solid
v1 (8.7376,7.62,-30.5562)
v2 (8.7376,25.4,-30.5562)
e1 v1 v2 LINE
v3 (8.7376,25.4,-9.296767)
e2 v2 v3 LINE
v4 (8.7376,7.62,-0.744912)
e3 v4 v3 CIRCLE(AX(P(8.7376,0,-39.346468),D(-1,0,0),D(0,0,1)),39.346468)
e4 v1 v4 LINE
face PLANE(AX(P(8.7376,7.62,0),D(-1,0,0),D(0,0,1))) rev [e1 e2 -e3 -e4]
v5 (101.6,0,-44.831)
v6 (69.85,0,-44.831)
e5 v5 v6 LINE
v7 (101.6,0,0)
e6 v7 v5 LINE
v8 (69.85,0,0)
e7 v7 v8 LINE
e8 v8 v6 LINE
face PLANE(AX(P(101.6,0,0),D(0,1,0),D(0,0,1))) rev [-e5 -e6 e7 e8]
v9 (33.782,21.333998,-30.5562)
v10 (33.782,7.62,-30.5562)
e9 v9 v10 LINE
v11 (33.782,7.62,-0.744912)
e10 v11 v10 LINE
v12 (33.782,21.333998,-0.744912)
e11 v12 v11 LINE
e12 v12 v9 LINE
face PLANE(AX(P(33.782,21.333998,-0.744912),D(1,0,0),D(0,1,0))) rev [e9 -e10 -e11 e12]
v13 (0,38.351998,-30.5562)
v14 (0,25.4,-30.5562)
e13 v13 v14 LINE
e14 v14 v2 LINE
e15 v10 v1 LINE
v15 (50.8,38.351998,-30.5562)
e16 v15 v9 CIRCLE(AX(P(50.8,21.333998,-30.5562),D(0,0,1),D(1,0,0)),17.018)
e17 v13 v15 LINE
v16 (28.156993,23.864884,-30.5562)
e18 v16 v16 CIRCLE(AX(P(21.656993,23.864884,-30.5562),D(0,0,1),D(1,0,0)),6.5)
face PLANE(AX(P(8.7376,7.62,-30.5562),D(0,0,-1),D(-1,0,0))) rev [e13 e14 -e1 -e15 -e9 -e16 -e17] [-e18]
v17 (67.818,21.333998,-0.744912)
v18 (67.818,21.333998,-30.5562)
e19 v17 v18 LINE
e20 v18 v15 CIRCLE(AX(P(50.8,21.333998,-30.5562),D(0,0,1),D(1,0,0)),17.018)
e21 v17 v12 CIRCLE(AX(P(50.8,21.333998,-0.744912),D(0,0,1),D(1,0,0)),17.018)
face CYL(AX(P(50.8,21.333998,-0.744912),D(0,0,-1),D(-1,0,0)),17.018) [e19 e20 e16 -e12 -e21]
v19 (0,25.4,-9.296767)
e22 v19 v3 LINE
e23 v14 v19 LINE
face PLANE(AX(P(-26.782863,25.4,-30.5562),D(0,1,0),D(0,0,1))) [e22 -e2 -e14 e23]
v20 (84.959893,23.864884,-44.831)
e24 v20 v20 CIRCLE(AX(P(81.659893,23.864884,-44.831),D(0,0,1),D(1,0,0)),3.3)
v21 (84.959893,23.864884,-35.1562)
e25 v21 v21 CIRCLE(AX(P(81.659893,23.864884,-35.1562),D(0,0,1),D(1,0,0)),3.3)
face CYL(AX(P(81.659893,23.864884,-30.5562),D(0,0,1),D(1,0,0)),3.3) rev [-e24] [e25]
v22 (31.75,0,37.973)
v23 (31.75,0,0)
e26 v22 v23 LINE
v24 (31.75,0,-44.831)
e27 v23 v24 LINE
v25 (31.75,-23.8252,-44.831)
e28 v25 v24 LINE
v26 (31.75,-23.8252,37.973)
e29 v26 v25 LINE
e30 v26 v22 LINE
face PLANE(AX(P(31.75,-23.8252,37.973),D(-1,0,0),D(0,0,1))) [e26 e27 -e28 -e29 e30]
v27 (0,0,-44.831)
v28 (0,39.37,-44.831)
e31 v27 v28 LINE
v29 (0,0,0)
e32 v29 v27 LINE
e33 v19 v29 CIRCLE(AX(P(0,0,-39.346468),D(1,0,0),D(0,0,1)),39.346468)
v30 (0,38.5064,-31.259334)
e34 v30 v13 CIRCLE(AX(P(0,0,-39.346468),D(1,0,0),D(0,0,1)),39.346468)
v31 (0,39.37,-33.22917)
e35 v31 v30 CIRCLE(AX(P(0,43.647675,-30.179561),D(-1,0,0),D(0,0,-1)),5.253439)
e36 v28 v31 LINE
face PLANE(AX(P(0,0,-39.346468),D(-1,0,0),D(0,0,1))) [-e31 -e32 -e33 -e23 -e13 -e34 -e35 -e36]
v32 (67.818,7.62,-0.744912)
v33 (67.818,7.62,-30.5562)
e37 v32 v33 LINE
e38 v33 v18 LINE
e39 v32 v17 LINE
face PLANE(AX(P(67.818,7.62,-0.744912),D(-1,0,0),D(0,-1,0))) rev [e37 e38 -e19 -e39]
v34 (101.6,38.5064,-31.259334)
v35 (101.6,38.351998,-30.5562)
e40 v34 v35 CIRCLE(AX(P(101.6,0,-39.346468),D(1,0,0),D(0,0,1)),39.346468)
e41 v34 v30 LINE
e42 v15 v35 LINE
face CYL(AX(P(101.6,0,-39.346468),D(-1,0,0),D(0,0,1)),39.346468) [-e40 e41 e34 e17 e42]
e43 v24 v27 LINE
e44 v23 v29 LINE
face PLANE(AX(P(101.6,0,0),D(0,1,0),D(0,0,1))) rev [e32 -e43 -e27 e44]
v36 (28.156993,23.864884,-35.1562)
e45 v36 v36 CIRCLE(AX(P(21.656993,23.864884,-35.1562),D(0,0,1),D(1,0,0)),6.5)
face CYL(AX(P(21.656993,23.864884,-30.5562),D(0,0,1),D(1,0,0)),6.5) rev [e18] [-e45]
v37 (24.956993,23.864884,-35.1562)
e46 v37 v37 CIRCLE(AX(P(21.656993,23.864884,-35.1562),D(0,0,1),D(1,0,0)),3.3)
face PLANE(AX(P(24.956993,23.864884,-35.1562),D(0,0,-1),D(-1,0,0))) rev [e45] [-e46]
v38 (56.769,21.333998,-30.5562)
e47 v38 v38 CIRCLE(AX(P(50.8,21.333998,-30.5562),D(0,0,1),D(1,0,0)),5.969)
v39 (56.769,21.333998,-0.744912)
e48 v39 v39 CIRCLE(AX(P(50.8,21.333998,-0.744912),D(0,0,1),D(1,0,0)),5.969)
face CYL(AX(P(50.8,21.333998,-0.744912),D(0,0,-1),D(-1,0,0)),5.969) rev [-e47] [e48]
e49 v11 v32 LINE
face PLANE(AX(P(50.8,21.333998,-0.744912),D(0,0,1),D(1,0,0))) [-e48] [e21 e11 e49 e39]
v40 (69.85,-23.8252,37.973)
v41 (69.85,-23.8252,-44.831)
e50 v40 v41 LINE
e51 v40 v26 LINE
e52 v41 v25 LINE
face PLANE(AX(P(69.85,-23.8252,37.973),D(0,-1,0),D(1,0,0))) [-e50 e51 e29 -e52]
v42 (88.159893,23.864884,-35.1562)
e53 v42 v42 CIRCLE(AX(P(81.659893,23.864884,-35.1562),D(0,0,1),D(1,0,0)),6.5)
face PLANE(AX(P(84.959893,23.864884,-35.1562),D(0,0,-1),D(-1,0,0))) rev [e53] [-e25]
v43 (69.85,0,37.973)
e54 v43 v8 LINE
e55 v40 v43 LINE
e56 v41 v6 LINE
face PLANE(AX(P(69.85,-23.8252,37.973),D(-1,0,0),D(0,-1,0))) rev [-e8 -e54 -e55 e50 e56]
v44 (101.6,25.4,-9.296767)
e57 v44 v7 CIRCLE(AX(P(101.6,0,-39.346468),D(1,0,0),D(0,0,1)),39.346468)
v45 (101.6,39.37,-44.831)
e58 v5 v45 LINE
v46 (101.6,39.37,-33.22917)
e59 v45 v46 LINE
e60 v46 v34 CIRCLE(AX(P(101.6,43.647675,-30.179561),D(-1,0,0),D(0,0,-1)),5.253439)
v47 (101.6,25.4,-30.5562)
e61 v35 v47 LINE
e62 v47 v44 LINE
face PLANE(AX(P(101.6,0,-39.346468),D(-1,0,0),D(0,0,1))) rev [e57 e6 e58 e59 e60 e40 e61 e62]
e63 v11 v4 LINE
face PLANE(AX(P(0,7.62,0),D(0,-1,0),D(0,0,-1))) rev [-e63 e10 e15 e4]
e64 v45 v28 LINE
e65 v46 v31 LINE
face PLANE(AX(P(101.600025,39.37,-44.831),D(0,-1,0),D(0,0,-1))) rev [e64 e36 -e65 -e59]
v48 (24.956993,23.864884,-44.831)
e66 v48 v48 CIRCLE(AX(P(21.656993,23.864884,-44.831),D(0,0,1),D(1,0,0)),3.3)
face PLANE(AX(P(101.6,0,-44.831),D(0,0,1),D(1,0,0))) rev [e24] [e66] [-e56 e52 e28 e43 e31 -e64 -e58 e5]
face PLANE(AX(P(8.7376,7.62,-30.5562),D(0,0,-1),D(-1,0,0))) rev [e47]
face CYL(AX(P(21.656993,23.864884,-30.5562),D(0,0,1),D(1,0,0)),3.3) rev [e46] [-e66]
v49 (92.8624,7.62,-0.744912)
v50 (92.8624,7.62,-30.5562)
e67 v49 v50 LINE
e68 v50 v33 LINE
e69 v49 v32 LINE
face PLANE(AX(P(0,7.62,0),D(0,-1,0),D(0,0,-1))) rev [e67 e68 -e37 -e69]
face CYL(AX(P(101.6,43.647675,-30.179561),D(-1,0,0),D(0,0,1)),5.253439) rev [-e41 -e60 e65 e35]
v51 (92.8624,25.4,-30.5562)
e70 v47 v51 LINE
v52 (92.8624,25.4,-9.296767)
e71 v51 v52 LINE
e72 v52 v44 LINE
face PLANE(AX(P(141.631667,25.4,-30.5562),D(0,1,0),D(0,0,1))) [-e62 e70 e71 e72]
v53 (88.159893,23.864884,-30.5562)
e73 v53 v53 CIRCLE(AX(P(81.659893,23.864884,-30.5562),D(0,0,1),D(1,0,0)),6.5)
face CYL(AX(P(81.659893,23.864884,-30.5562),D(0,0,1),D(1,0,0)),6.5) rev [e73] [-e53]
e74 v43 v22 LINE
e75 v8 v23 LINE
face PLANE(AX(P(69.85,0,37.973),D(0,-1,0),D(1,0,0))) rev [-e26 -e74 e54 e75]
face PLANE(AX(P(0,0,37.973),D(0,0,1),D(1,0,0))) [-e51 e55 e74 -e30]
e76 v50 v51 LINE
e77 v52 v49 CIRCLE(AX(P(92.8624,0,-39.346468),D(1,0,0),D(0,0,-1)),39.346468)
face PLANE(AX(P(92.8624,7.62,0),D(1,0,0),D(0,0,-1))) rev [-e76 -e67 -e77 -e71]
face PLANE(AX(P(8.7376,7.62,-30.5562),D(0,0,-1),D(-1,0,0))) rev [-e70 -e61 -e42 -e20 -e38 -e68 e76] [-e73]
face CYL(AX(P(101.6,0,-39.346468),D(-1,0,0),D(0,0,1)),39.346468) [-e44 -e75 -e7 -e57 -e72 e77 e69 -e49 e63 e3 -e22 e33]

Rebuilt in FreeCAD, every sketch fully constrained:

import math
import FreeCAD as App
import Part
import Sketcher

V = App.Vector
Q = App.Units.Quantity

doc = App.newDocument("Part")
body = doc.addObject("PartDesign::Body", "Body")

# Sketch on YZ plane
sketch1 = doc.addObject("Sketcher::SketchObject", "Sketch")
body.addObject(sketch1)
sketch1.AttachmentSupport = (doc.YZ_Plane, [""])
sketch1.MapMode = "FlatFace"
sketch1.addGeometry([
    Part.LineSegment(V(45.2, -35.4, 0), V(43.6, -35.4, 0)),  # 0
    Part.ArcOfCircle(Part.Circle(V(43.6, -30.2, 0), V(0, 0, 1), 5.3), math.radians(-168), math.radians(-90)),  # 1
    Part.ArcOfCircle(Part.Circle(V(0, -39.3, 0), V(0, 0, 1), 39.3), math.radians(12), math.radians(90)),  # 2
    Part.LineSegment(V(0, 0, 0), V(0, -44.8, 0)),  # 3
    Part.LineSegment(V(0, -44.8, 0), V(45.2, -44.8, 0)),  # 4
    Part.LineSegment(V(45.2, -44.8, 0), V(45.2, -35.4, 0)),  # 5
], False)
sketch1.addConstraint([
    Sketcher.Constraint("Tangent", 0, 2, 1, 2),
    Sketcher.Constraint("Tangent", 1, 1, 2, 1),
    Sketcher.Constraint("Coincident", 2, 2, 3, 1),
    Sketcher.Constraint("Coincident", 3, 2, 4, 1),
    Sketcher.Constraint("Coincident", 4, 2, 5, 1),
    Sketcher.Constraint("Coincident", 5, 2, 0, 1),
    Sketcher.Constraint("Horizontal", 0),
    Sketcher.Constraint("Vertical", 3),
    Sketcher.Constraint("Horizontal", 4),
    Sketcher.Constraint("Vertical", 5),
    Sketcher.Constraint("Coincident", 2, 2, -1, 1),
    Sketcher.Constraint("PointOnObject", 2, 3, -2),
    Sketcher.Constraint("DistanceX", 4, 1, 4, 2, Q("1.78 in")),
    Sketcher.Constraint("DistanceY", 5, 1, 5, 2, Q("0.37 in")),
    Sketcher.Constraint("DistanceY", 3, 2, 3, 1, Q("1.765 in")),
    Sketcher.Constraint("DistanceX", -1, 1, 1, 1, Q("1.516 in")),
    Sketcher.Constraint("Radius", 1, Q("5.253439 mm")),
])
pad1 = doc.addObject("PartDesign::Pad", "Pad")
body.addObject(pad1)
pad1.Profile = sketch1
pad1.Length = Q("4 in")

# Sketch on XZ plane
sketch2 = doc.addObject("Sketcher::SketchObject", "Sketch001")
body.addObject(sketch2)
sketch2.AttachmentSupport = (doc.XZ_Plane, [""])
sketch2.MapMode = "FlatFace"
sketch2.AttachmentOffset = App.Placement(V(0, 0, -1.78 * 25.4), App.Rotation())
sketch2.addGeometry([
    Part.LineSegment(V(9, -31, 0), V(9, 0, 0)),
    Part.LineSegment(V(9, 0, 0), V(93, 0, 0)),
    Part.LineSegment(V(93, 0, 0), V(93, -31, 0)),
    Part.LineSegment(V(93, -31, 0), V(9, -31, 0)),
], False)
sketch2.addConstraint([
    Sketcher.Constraint("Coincident", 0, 2, 1, 1),
    Sketcher.Constraint("Coincident", 1, 2, 2, 1),
    Sketcher.Constraint("Coincident", 2, 2, 3, 1),
    Sketcher.Constraint("Coincident", 3, 2, 0, 1),
    Sketcher.Constraint("Vertical", 0),
    Sketcher.Constraint("Horizontal", 1),
    Sketcher.Constraint("Vertical", 2),
    Sketcher.Constraint("Horizontal", 3),
    Sketcher.Constraint("PointOnObject", 0, 2, -1),
    Sketcher.Constraint("DistanceX", 1, 1, 1, 2, Q("3.312 in")),
    Sketcher.Constraint("DistanceY", 0, 1, 0, 2, Q("1.203 in")),
    Sketcher.Constraint("DistanceX", -1, 1, 0, 2, Q("0.344 in")),
])
pocket1 = doc.addObject("PartDesign::Pocket", "Pocket")
body.addObject(pocket1)
pocket1.Profile = sketch2
pocket1.Length = Q("1.48 in")
pocket1.Reversed = True

# Sketch on XY plane
sketch3 = doc.addObject("Sketcher::SketchObject", "Sketch002")
body.addObject(sketch3)
sketch3.AttachmentSupport = (doc.XY_Plane, [""])
sketch3.MapMode = "FlatFace"
sketch3.AttachmentOffset = App.Placement(V(0, 0, -1.203 * 25.4), App.Rotation())
sketch3.addGeometry([
    Part.LineSegment(V(68, 8, 0), V(68, 21, 0)),  # 0
    Part.ArcOfCircle(Part.Circle(V(51, 21, 0), V(0, 0, 1), 17), math.radians(0), math.radians(180)),  # 1
    Part.LineSegment(V(34, 21, 0), V(34, 8, 0)),  # 2
    Part.LineSegment(V(34, 8, 0), V(68, 8, 0)),  # 3
    Part.Circle(V(51, 21, 0), V(0, 0, 1), 6),  # 4
], False)
sketch3.addConstraint([
    Sketcher.Constraint("Tangent", 0, 2, 1, 1),
    Sketcher.Constraint("Tangent", 1, 2, 2, 1),
    Sketcher.Constraint("Coincident", 2, 2, 3, 1),
    Sketcher.Constraint("Coincident", 3, 2, 0, 1),
    Sketcher.Constraint("Vertical", 0),
    Sketcher.Constraint("Vertical", 2),
    Sketcher.Constraint("Horizontal", 3),
    Sketcher.Constraint("Coincident", 4, 3, 1, 3),
    Sketcher.Constraint("Diameter", 4, Q("0.47 in")),
    Sketcher.Constraint("Radius", 1, Q("0.67 in")),
    Sketcher.Constraint("DistanceX", -1, 1, 1, 3, Q("2 in")),
    Sketcher.Constraint("DistanceY", -1, 1, 2, 2, Q("0.3 in")),
    Sketcher.Constraint("DistanceY", 0, 1, 0, 2, Q("13.713998 mm")),
])
pad2 = doc.addObject("PartDesign::Pad", "Pad001")
body.addObject(pad2)
pad2.Profile = sketch3
pad2.Length = 29.811288

# Sketch on XY plane
sketch4 = doc.addObject("Sketcher::SketchObject", "Sketch003")
body.addObject(sketch4)
sketch4.AttachmentSupport = (doc.XY_Plane, [""])
sketch4.MapMode = "FlatFace"
sketch4.AttachmentOffset = App.Placement(V(0, 0, -1.765 * 25.4), App.Rotation())
sketch4.addGeometry([
    Part.LineSegment(V(70, 0, 0), V(70, -24, 0)),
    Part.LineSegment(V(70, -24, 0), V(32, -24, 0)),
    Part.LineSegment(V(32, -24, 0), V(32, 0, 0)),
    Part.LineSegment(V(32, 0, 0), V(70, 0, 0)),
], False)
sketch4.addConstraint([
    Sketcher.Constraint("Coincident", 0, 2, 1, 1),
    Sketcher.Constraint("Coincident", 1, 2, 2, 1),
    Sketcher.Constraint("Coincident", 2, 2, 3, 1),
    Sketcher.Constraint("Coincident", 3, 2, 0, 1),
    Sketcher.Constraint("Vertical", 0),
    Sketcher.Constraint("Horizontal", 1),
    Sketcher.Constraint("Vertical", 2),
    Sketcher.Constraint("Horizontal", 3),
    Sketcher.Constraint("PointOnObject", 2, 2, -1),
    Sketcher.Constraint("DistanceX", 1, 2, 1, 1, Q("1.5 in")),
    Sketcher.Constraint("DistanceY", 0, 2, 0, 1, Q("0.938 in")),
    Sketcher.Constraint("DistanceX", -1, 1, 0, 2, Q("2.75 in")),
])
pad3 = doc.addObject("PartDesign::Pad", "Pad002")
body.addObject(pad3)
pad3.Profile = sketch4
pad3.Length = Q("3.26 in")

# Sketch on XY plane
sketch5 = doc.addObject("Sketcher::SketchObject", "Sketch004")
body.addObject(sketch5)
sketch5.AttachmentSupport = (doc.XY_Plane, [""])
sketch5.MapMode = "FlatFace"
sketch5.AttachmentOffset = App.Placement(V(0, 0, -1.203 * 25.4), App.Rotation())
sketch5.addGeometry([
    Part.Circle(V(21.7, 23.9, 0), V(0, 0, 1), 3.3),
    Part.Circle(V(81.7, 23.9, 0), V(0, 0, 1), 3.3),
], False)
sketch5.addConstraint([
    Sketcher.Constraint("Equal", 0, 1),
    Sketcher.Constraint("Horizontal", 0, 3, 1, 3),
    Sketcher.Constraint("Diameter", 0, Q("6.6 mm")),
    Sketcher.Constraint("DistanceX", 0, 3, 1, 3, Q("60.0029 mm")),
    Sketcher.Constraint("DistanceX", -1, 1, 0, 3, Q("21.656993 mm")),
    Sketcher.Constraint("DistanceY", -1, 1, 0, 3, Q("23.864884 mm")),
])
doc.recompute()
hole = doc.addObject("PartDesign::Hole", "Hole")
body.addObject(hole)
hole.Profile = sketch5
hole.ThreadType = "None"
hole.Diameter = 6.6
hole.DepthType = "ThroughAll"
hole.HoleCutType = "Counterbore"
hole.HoleCutDiameter = 13
hole.HoleCutDepth = 4.6

# Sketch on YZ plane
sketch6 = doc.addObject("Sketcher::SketchObject", "Sketch005")
body.addObject(sketch6)
sketch6.AttachmentSupport = (doc.YZ_Plane, [""])
sketch6.MapMode = "FlatFace"
sketch6.addGeometry([
    Part.LineSegment(V(45, -45, 0), V(39, -45, 0)),
    Part.LineSegment(V(39, -45, 0), V(39, -30, 0)),
    Part.LineSegment(V(39, -30, 0), V(45, -30, 0)),
    Part.LineSegment(V(45, -30, 0), V(45, -45, 0)),
], False)
sketch6.addConstraint([
    Sketcher.Constraint("Coincident", 0, 2, 1, 1),
    Sketcher.Constraint("Coincident", 1, 2, 2, 1),
    Sketcher.Constraint("Coincident", 2, 2, 3, 1),
    Sketcher.Constraint("Coincident", 3, 2, 0, 1),
    Sketcher.Constraint("Horizontal", 0),
    Sketcher.Constraint("Vertical", 1),
    Sketcher.Constraint("Horizontal", 2),
    Sketcher.Constraint("Vertical", 3),
    Sketcher.Constraint("DistanceX", 0, 2, 0, 1, Q("0.23 in")),
    Sketcher.Constraint("DistanceX", -1, 1, 0, 2, Q("1.55 in")),
    Sketcher.Constraint("DistanceY", 0, 2, -1, 1, Q("1.765 in")),
    Sketcher.Constraint("DistanceY", 1, 1, 1, 2, Q("14.651439 mm")),
])
pocket2 = doc.addObject("PartDesign::Pocket", "Pocket001")
body.addObject(pocket2)
pocket2.Profile = sketch6
pocket2.Type = "ThroughAll"
pocket2.Reversed = True

# Sketch on YZ plane
sketch7 = doc.addObject("Sketcher::SketchObject", "Sketch006")
body.addObject(sketch7)
sketch7.AttachmentSupport = (doc.YZ_Plane, [""])
sketch7.MapMode = "FlatFace"
sketch7.AttachmentOffset = App.Placement(V(0, 0, 0.344 * 25.4), App.Rotation())
sketch7.addGeometry([
    Part.LineSegment(V(38, -31, 0), V(25, -31, 0)),
    Part.LineSegment(V(25, -31, 0), V(25, -7, 0)),
    Part.LineSegment(V(25, -7, 0), V(38, -7, 0)),
    Part.LineSegment(V(38, -7, 0), V(38, -31, 0)),
], False)
sketch7.addConstraint([
    Sketcher.Constraint("Coincident", 0, 2, 1, 1),
    Sketcher.Constraint("Coincident", 1, 2, 2, 1),
    Sketcher.Constraint("Coincident", 2, 2, 3, 1),
    Sketcher.Constraint("Coincident", 3, 2, 0, 1),
    Sketcher.Constraint("Horizontal", 0),
    Sketcher.Constraint("Vertical", 1),
    Sketcher.Constraint("Horizontal", 2),
    Sketcher.Constraint("Vertical", 3),
    Sketcher.Constraint("DistanceX", -1, 1, 0, 2, Q("1 in")),
    Sketcher.Constraint("DistanceY", 0, 2, -1, 1, Q("1.203 in")),
    Sketcher.Constraint("DistanceX", 0, 2, 0, 1, Q("12.951998 mm")),
    Sketcher.Constraint("DistanceY", 1, 1, 1, 2, Q("23.442855 mm")),
])
pocket3 = doc.addObject("PartDesign::Pocket", "Pocket002")
body.addObject(pocket3)
pocket3.Profile = sketch7
pocket3.Length = Q("0.344 in")

# Sketch on YZ plane
sketch8 = doc.addObject("Sketcher::SketchObject", "Sketch007")
body.addObject(sketch8)
sketch8.AttachmentSupport = (doc.YZ_Plane, [""])
sketch8.MapMode = "FlatFace"
sketch8.AttachmentOffset = App.Placement(V(0, 0, 3.656 * 25.4), App.Rotation())
sketch8.addGeometry([
    Part.LineSegment(V(38, 7, 0), V(25, 7, 0)),
    Part.LineSegment(V(25, 7, 0), V(25, -31, 0)),
    Part.LineSegment(V(25, -31, 0), V(38, -31, 0)),
    Part.LineSegment(V(38, -31, 0), V(38, 7, 0)),
], False)
sketch8.addConstraint([
    Sketcher.Constraint("Coincident", 0, 2, 1, 1),
    Sketcher.Constraint("Coincident", 1, 2, 2, 1),
    Sketcher.Constraint("Coincident", 2, 2, 3, 1),
    Sketcher.Constraint("Coincident", 3, 2, 0, 1),
    Sketcher.Constraint("Horizontal", 0),
    Sketcher.Constraint("Vertical", 1),
    Sketcher.Constraint("Horizontal", 2),
    Sketcher.Constraint("Vertical", 3),
    Sketcher.Constraint("DistanceX", -1, 1, 0, 2, Q("1 in")),
    Sketcher.Constraint("DistanceY", 1, 2, -1, 1, Q("1.203 in")),
    Sketcher.Constraint("DistanceX", 0, 2, 0, 1, Q("12.951998 mm")),
    Sketcher.Constraint("DistanceY", 1, 2, 1, 1, Q("37.878491 mm")),
])
pocket4 = doc.addObject("PartDesign::Pocket", "Pocket003")
body.addObject(pocket4)
pocket4.Profile = sketch8
pocket4.Length = Q("0.344 in")
pocket4.Reversed = True

doc.recompute()
